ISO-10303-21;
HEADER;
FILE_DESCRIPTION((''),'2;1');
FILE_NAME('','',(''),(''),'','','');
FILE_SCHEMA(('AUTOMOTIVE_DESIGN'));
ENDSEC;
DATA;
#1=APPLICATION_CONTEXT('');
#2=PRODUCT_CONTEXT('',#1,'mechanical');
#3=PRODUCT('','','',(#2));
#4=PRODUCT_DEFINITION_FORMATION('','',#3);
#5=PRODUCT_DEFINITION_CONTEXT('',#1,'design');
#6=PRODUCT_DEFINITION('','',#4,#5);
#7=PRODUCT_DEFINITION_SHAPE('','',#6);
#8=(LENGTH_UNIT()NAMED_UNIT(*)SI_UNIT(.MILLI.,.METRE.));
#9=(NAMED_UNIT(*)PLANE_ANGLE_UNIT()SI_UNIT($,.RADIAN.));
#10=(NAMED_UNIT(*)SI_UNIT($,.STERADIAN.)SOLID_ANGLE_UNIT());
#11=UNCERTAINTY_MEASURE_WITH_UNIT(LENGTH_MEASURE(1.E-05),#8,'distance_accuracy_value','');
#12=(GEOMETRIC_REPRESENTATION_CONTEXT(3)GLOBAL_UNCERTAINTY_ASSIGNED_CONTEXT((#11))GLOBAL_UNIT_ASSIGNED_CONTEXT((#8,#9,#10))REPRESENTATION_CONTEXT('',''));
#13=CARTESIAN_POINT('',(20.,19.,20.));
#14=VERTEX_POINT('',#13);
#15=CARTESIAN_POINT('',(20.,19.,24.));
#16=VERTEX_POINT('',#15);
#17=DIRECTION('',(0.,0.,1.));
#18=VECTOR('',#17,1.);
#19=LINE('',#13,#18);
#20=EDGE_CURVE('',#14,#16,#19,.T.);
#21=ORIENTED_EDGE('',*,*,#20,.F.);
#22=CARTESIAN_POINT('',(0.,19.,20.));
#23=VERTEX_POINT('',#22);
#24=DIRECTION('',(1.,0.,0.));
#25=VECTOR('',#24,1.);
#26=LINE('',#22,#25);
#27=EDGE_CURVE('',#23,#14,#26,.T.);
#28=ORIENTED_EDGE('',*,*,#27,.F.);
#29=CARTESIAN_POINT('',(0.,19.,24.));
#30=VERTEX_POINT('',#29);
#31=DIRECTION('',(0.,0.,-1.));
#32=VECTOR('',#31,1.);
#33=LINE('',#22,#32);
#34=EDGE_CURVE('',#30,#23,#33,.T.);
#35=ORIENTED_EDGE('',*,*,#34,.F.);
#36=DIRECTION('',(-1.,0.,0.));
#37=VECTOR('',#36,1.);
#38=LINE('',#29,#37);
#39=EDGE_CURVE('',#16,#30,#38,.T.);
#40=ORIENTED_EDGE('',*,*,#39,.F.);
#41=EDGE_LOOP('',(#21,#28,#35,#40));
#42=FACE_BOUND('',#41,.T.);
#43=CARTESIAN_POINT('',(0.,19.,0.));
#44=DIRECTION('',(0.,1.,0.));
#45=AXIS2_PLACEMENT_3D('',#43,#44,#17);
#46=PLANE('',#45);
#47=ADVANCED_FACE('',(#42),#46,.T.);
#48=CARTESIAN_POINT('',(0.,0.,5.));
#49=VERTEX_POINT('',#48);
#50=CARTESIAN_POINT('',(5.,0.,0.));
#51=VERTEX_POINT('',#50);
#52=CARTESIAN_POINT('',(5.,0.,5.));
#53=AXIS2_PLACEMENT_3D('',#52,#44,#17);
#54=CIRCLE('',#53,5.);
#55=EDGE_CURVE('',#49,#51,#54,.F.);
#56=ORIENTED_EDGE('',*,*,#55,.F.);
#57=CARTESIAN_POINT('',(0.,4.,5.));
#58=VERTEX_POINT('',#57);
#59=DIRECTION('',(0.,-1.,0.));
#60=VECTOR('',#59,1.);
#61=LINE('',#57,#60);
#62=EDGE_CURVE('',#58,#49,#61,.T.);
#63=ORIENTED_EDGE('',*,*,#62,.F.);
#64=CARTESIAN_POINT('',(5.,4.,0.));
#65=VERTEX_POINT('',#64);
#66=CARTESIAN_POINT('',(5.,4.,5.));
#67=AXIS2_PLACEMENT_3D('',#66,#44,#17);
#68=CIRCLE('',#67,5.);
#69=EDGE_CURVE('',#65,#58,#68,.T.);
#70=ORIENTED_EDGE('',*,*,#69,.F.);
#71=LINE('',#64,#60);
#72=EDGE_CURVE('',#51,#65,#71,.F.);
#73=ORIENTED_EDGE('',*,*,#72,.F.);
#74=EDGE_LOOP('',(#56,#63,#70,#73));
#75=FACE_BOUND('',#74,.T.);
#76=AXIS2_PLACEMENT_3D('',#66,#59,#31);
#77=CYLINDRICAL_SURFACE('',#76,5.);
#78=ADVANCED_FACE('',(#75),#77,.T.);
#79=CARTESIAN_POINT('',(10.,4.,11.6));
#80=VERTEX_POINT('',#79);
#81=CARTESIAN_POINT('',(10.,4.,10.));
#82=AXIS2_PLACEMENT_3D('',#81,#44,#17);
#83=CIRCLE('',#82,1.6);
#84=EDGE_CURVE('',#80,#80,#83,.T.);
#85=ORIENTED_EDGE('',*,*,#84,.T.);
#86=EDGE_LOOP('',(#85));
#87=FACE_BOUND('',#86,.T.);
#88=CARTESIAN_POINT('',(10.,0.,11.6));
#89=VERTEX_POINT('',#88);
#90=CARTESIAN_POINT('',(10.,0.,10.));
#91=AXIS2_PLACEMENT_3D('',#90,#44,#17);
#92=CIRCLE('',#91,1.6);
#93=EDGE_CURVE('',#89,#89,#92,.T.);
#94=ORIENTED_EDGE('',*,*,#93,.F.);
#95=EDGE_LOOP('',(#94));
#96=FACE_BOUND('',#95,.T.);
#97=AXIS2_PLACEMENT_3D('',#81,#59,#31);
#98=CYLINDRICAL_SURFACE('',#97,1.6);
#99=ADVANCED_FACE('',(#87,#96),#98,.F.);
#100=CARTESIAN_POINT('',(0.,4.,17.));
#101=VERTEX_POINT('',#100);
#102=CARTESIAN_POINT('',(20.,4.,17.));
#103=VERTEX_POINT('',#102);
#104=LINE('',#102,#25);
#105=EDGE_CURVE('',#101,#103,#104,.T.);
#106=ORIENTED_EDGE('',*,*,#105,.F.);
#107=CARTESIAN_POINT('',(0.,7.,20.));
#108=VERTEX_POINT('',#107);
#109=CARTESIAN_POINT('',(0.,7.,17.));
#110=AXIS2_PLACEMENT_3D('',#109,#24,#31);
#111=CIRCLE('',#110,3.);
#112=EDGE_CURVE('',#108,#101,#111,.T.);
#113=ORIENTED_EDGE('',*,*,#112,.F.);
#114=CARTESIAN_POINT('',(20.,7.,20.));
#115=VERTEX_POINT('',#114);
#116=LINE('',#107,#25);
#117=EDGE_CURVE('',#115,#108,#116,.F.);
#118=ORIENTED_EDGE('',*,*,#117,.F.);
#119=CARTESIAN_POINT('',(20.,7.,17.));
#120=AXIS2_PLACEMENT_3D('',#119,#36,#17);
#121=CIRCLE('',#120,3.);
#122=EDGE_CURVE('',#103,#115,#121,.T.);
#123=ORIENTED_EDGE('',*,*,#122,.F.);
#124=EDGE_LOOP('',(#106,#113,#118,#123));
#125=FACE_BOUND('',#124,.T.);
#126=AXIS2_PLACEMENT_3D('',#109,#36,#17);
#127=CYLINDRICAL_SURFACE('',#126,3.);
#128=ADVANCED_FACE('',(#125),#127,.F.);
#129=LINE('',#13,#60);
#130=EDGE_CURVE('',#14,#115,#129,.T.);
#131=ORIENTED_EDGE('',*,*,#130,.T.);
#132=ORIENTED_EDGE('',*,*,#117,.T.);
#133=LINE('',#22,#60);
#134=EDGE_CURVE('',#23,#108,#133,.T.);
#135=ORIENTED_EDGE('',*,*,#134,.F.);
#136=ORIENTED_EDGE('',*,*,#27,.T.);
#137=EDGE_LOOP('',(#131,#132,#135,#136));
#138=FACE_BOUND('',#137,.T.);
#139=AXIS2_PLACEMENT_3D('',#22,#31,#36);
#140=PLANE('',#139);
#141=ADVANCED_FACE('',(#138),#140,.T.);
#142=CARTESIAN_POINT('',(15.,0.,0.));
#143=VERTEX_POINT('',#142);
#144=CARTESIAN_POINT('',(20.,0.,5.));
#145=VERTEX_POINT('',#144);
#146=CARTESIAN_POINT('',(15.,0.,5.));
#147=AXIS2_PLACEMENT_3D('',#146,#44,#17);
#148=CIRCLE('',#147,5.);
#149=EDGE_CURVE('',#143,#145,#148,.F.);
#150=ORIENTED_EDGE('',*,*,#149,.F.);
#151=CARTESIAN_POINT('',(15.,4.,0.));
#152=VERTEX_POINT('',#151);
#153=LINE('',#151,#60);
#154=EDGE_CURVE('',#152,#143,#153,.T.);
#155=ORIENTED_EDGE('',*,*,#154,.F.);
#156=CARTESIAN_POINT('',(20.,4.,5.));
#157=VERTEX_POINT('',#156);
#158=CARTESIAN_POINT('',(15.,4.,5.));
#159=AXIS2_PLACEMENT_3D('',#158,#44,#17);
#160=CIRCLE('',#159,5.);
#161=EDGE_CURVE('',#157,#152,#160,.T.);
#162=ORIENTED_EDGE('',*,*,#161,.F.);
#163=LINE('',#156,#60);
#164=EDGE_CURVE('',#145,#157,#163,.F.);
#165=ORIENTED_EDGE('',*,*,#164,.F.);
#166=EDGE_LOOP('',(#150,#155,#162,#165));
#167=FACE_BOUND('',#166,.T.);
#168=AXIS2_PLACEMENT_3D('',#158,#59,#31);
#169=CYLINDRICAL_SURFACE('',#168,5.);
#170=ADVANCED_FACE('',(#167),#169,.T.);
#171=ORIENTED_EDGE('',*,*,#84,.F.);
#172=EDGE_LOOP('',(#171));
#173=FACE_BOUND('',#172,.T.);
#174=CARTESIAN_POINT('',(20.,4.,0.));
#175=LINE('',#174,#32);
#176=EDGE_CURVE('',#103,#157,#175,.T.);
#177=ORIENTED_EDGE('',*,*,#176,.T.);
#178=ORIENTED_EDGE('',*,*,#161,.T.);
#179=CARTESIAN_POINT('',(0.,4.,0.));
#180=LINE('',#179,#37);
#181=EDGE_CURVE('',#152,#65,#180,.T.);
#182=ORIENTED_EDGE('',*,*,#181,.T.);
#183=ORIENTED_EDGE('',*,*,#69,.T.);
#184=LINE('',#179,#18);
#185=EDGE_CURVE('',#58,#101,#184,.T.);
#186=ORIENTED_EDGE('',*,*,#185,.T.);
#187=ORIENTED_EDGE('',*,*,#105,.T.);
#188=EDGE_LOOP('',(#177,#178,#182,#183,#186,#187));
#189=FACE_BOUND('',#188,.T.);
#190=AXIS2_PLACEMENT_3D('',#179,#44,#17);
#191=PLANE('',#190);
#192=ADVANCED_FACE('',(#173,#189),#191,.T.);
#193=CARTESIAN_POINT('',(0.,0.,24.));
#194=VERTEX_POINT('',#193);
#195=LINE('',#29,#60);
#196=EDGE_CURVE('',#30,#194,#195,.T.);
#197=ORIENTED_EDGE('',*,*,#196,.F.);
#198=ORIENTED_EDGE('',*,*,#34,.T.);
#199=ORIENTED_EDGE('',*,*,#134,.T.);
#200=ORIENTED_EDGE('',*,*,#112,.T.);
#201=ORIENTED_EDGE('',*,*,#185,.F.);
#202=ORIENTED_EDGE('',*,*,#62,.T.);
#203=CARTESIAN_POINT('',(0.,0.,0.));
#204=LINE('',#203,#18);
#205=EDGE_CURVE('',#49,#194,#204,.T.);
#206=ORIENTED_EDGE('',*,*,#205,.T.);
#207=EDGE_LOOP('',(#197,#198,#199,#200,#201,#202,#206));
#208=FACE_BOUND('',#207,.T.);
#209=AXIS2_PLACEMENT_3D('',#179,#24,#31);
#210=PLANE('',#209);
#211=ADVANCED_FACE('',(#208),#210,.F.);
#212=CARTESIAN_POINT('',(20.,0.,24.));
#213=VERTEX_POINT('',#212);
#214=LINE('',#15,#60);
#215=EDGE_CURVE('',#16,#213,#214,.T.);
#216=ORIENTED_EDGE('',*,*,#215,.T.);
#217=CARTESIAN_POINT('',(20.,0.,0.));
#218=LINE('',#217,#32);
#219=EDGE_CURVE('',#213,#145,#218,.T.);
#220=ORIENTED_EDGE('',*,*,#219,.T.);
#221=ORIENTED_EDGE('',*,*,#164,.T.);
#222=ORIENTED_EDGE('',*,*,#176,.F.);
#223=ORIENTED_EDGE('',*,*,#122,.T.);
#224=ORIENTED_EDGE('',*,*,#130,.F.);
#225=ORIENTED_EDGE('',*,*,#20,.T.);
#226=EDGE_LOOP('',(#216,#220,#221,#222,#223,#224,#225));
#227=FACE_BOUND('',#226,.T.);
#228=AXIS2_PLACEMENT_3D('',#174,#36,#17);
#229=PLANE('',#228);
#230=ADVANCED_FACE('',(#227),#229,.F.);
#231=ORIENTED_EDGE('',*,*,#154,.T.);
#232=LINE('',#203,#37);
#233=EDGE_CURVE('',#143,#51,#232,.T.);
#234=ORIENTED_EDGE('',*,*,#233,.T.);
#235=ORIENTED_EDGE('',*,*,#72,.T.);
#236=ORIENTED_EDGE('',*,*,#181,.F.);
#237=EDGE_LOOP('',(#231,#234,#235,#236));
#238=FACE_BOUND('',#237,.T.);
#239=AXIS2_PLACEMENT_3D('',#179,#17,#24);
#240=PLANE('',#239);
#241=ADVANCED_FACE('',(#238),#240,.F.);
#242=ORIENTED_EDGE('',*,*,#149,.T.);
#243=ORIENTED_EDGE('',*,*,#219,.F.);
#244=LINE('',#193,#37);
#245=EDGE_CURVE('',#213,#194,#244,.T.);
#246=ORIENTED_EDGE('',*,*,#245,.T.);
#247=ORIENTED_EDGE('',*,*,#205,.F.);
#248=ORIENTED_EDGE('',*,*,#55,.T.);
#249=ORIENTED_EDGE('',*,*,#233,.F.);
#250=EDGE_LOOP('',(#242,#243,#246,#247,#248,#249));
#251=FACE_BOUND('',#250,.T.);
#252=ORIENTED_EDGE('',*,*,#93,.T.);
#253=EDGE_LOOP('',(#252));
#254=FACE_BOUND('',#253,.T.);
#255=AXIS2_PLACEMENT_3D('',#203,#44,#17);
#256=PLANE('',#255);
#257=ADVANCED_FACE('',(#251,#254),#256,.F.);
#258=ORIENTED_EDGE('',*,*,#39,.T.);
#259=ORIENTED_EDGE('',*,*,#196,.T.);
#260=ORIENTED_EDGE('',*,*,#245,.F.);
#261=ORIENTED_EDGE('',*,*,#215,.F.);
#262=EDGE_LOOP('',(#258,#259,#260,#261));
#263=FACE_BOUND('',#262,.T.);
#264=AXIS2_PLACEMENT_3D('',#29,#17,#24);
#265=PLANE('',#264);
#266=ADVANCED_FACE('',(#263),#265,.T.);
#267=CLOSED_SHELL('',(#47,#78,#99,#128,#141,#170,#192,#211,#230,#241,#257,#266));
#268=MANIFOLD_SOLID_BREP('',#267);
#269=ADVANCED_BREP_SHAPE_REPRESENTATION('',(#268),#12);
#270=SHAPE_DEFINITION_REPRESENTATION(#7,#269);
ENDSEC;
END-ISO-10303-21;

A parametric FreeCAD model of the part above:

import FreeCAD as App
import Part
import Sketcher

V = App.Vector
Q = App.Units.Quantity


def edges_at(feature, points):
    """Names of the edges that pass closest to the given points."""
    edges = feature.Shape.Edges
    near = lambda p: min(range(len(edges)), key=lambda i: edges[i].distToShape(Part.Vertex(*p))[0])
    return sorted({f"Edge{near(p) + 1}" for p in points})

doc = App.newDocument("Part")
params = doc.addObject("Spreadsheet::Sheet", "Params")
for row, (alias, value) in enumerate([
    ("sketch1_diameter", "3.2 mm"),
    ("sketch1_width", "20 mm"),
    ("pad1_length", "4 mm"),
    ("sketch2_width", "20 mm"),
    ("sketch2_height", "4 mm"),
    ("pad2_length", "19 mm"),
    ("fillet_radius", "3 mm"),
    ("fillet2_radius", "5 mm"),
], start=1):
    params.set(f"A{row}", alias)
    params.set(f"B{row}", "=" + value)
    params.setAlias(f"B{row}", alias)

body = doc.addObject("PartDesign::Body", "Body")

# Sketch on XZ plane
sketch1 = doc.addObject("Sketcher::SketchObject", "Sketch")
body.addObject(sketch1)
sketch1.AttachmentSupport = (doc.XZ_Plane, [""])
sketch1.MapMode = "FlatFace"
sketch1.addGeometry([
    Part.LineSegment(V(0, 0, 0), V(0, 20, 0)),  # 0
    Part.LineSegment(V(0, 20, 0), V(20, 20, 0)),  # 1
    Part.LineSegment(V(20, 20, 0), V(20, 0, 0)),  # 2
    Part.LineSegment(V(20, 0, 0), V(0, 0, 0)),  # 3
    Part.Circle(V(10, 10, 0), V(0, 0, 1), 1.6),  # 4
], False)
sketch1.addConstraint([
    Sketcher.Constraint("Coincident", 0, 2, 1, 1),
    Sketcher.Constraint("Coincident", 1, 2, 2, 1),
    Sketcher.Constraint("Coincident", 2, 2, 3, 1),
    Sketcher.Constraint("Coincident", 3, 2, 0, 1),
    Sketcher.Constraint("Vertical", 0),
    Sketcher.Constraint("Horizontal", 1),
    Sketcher.Constraint("Vertical", 2),
    Sketcher.Constraint("Horizontal", 3),
    Sketcher.Constraint("Coincident", 3, 2, -1, 1),
    Sketcher.Constraint("Equal", 3, 0),
    Sketcher.Constraint("Diameter", 4, Q("3.2 mm")),
    Sketcher.Constraint("DistanceX", 1, 1, 1, 2, Q("20 mm")),
    Sketcher.Constraint("DistanceX", -1, 1, 4, 3, Q("10 mm")),
    Sketcher.Constraint("DistanceY", -1, 1, 4, 3, Q("10 mm")),
])
sketch1.setExpression("Constraints[10]", "Params.sketch1_diameter")
sketch1.setExpression("Constraints[11]", "Params.sketch1_width")
pad1 = doc.addObject("PartDesign::Pad", "Pad")
body.addObject(pad1)
pad1.Profile = sketch1
pad1.setExpression("Length", "Params.pad1_length")
pad1.Reversed = True

# Sketch on XZ plane
sketch2 = doc.addObject("Sketcher::SketchObject", "Sketch001")
body.addObject(sketch2)
sketch2.AttachmentSupport = (doc.XZ_Plane, [""])
sketch2.MapMode = "FlatFace"
sketch2.addGeometry([
    Part.LineSegment(V(20, 20, 0), V(20, 24, 0)),
    Part.LineSegment(V(20, 24, 0), V(0, 24, 0)),
    Part.LineSegment(V(0, 24, 0), V(0, 20, 0)),
    Part.LineSegment(V(0, 20, 0), V(20, 20, 0)),
], False)
sketch2.addConstraint([
    Sketcher.Constraint("Coincident", 0, 2, 1, 1),
    Sketcher.Constraint("Coincident", 1, 2, 2, 1),
    Sketcher.Constraint("Coincident", 2, 2, 3, 1),
    Sketcher.Constraint("Coincident", 3, 2, 0, 1),
    Sketcher.Constraint("Vertical", 0),
    Sketcher.Constraint("Horizontal", 1),
    Sketcher.Constraint("Vertical", 2),
    Sketcher.Constraint("Horizontal", 3),
    Sketcher.Constraint("PointOnObject", 1, 2, -2),
    Sketcher.Constraint("DistanceX", 1, 2, 1, 1, Q("20 mm")),
    Sketcher.Constraint("DistanceY", 0, 1, 0, 2, Q("4 mm")),
    Sketcher.Constraint("DistanceY", -1, 1, 0, 2, Q("24 mm")),
])
sketch2.setExpression("Constraints[9]", "Params.sketch2_width")
sketch2.setExpression("Constraints[10]", "Params.sketch2_height")
pad2 = doc.addObject("PartDesign::Pad", "Pad001")
body.addObject(pad2)
pad2.Profile = sketch2
pad2.setExpression("Length", "Params.pad2_length")
pad2.Reversed = True
doc.recompute()

fillet = doc.addObject("PartDesign::Fillet", "Fillet")
body.addObject(fillet)
fillet.Base = (pad2, edges_at(pad2, [(10, 4, 20)]))
fillet.setExpression("Radius", "Params.fillet_radius")
doc.recompute()

fillet2 = doc.addObject("PartDesign::Fillet", "Fillet001")
body.addObject(fillet2)
fillet2.Base = (fillet, edges_at(fillet, [(0, 2, 0), (20, 2, 0)]))
fillet2.setExpression("Radius", "Params.fillet2_radius")

doc.recompute()
